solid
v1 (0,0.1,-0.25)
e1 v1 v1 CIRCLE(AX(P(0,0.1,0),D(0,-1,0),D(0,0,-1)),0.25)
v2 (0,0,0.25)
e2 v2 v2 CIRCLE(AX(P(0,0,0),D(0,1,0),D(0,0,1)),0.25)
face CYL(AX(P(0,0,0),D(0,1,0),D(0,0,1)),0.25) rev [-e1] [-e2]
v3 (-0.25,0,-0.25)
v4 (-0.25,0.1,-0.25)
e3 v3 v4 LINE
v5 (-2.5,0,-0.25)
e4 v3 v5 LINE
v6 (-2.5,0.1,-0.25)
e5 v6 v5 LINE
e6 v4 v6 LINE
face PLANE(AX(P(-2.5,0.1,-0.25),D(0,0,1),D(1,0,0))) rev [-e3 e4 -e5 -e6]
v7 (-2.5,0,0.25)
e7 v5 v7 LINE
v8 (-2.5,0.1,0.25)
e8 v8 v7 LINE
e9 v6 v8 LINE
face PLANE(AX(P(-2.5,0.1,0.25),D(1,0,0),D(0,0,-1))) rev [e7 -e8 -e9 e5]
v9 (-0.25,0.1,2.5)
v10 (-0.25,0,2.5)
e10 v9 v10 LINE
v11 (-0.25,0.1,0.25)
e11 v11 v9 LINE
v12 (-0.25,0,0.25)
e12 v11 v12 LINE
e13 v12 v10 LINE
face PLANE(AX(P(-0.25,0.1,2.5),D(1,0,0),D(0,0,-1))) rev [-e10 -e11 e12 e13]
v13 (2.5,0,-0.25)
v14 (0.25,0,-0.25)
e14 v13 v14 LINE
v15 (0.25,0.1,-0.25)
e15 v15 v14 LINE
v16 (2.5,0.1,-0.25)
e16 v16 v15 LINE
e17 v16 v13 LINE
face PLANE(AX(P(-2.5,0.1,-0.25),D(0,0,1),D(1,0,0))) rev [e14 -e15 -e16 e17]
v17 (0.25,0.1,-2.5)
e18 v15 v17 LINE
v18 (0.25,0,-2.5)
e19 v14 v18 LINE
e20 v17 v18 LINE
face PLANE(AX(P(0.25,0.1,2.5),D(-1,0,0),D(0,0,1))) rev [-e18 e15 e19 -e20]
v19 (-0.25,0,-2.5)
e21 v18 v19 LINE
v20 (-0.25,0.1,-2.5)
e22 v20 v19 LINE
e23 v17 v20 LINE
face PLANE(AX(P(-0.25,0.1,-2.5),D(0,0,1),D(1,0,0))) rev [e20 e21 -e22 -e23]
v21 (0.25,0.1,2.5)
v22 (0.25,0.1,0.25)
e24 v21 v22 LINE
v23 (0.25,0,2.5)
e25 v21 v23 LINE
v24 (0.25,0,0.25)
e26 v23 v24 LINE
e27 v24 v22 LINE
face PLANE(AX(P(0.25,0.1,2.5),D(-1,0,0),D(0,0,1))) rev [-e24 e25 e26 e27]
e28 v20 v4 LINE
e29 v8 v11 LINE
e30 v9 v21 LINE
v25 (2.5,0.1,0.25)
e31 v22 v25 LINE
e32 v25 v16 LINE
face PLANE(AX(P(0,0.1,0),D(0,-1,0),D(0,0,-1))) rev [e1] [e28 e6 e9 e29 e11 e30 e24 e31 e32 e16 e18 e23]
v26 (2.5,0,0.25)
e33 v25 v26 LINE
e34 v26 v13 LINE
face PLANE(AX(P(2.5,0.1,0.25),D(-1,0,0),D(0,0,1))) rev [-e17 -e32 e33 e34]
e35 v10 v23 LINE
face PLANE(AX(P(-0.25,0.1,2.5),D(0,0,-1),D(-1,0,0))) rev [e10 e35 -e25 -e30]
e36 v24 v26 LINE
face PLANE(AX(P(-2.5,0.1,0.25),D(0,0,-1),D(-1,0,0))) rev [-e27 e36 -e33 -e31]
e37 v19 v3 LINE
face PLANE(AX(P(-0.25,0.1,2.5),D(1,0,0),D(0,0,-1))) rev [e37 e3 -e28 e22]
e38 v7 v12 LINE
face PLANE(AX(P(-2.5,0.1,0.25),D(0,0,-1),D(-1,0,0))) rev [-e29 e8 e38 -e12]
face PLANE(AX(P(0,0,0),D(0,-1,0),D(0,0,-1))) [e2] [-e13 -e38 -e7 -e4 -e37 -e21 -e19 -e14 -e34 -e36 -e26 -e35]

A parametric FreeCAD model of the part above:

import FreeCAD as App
import Part
import Sketcher

V = App.Vector
Q = App.Units.Quantity


def add_polygon(sketch, points):
    """Adds a closed chain of lines whose ends are joined by coincident constraints."""
    first, n = sketch.GeometryCount, len(points)
    for a, b in zip(points, points[1:] + points[:1]):
        sketch.addGeometry(Part.LineSegment(App.Vector(*a, 0), App.Vector(*b, 0)), False)
    for i in range(n):
        sketch.addConstraint(Sketcher.Constraint("Coincident", first + i, 2, first + (i + 1) % n, 1))

doc = App.newDocument("Part")
params = doc.addObject("Spreadsheet::Sheet", "Params")
for row, (alias, value) in enumerate([
    ("sketch1_width", "5 mm"),
    ("sketch1_height", "0.5 mm"),
    ("pad1_length", "0.1 mm"),
    ("sketch2_height", "5 mm"),
    ("sketch2_width", "0.5 mm"),
    ("pad2_length", "0.1 mm"),
    ("sketch3_diameter", "0.5 mm"),
], start=1):
    params.set(f"A{row}", alias)
    params.set(f"B{row}", "=" + value)
    params.setAlias(f"B{row}", alias)

body = doc.addObject("PartDesign::Body", "Body")

# Sketch on XZ plane
sketch1 = body.newObject("Sketcher::SketchObject", "Sketch")
sketch1.AttachmentSupport = (doc.getObject("XZ_Plane"), [""])
sketch1.MapMode = "FlatFace"
add_polygon(sketch1, [(-2.5, -0.2), (-2.5, 0.2), (2.5, 0.2), (2.5, -0.2)])  # lines 0-3
sketch1.addConstraint([
    Sketcher.Constraint("Vertical", 0),
    Sketcher.Constraint("Horizontal", 1),
    Sketcher.Constraint("Vertical", 2),
    Sketcher.Constraint("Horizontal", 3),
    Sketcher.Constraint("Symmetric", 0, 2, 2, 2, -1, 1),
    Sketcher.Constraint("DistanceX", 1, 1, 1, 2, Q("5 mm")),
    Sketcher.Constraint("DistanceY", 0, 1, 0, 2, Q("0.5 mm")),
])
sketch1.setExpression("Constraints[9]", "Params.sketch1_width")
sketch1.setExpression("Constraints[10]", "Params.sketch1_height")
pad1 = body.newObject("PartDesign::Pad", "Pad")
pad1.Profile = sketch1
pad1.setExpression("Length", "Params.pad1_length")
pad1.Reversed = True

# Sketch on XZ plane
sketch2 = body.newObject("Sketcher::SketchObject", "Sketch001")
sketch2.AttachmentSupport = (doc.getObject("XZ_Plane"), [""])
sketch2.MapMode = "FlatFace"
add_polygon(sketch2, [(-0.2, -2.5), (-0.2, 2.5), (0.2, 2.5), (0.2, -2.5)])  # lines 0-3
sketch2.addConstraint([
    Sketcher.Constraint("Vertical", 0),
    Sketcher.Constraint("Horizontal", 1),
    Sketcher.Constraint("Vertical", 2),
    Sketcher.Constraint("Horizontal", 3),
    Sketcher.Constraint("Symmetric", 0, 2, 2, 2, -1, 1),
    Sketcher.Constraint("DistanceY", 0, 1, 0, 2, Q("5 mm")),
    Sketcher.Constraint("DistanceX", 1, 1, 1, 2, Q("0.5 mm")),
])
sketch2.setExpression("Constraints[9]", "Params.sketch2_height")
sketch2.setExpression("Constraints[10]", "Params.sketch2_width")
pad2 = body.newObject("PartDesign::Pad", "Pad001")
pad2.Profile = sketch2
pad2.setExpression("Length", "Params.pad2_length")
pad2.Reversed = True

# Sketch on XZ plane
sketch3 = body.newObject("Sketcher::SketchObject", "Sketch002")
sketch3.AttachmentSupport = (doc.getObject("XZ_Plane"), [""])
sketch3.MapMode = "FlatFace"
sketch3.AttachmentOffset = App.Placement(V(0, 0, -0.1), App.Rotation())
sketch3.addGeometry(Part.Circle(V(0, 0, 0), V(0, 0, 1), 0.25), False)
sketch3.addConstraint([
    Sketcher.Constraint("Coincident", 0, 3, -1, 1),
    Sketcher.Constraint("Diameter", 0, Q("0.5 mm")),
])
sketch3.setExpression("Constraints[1]", "Params.sketch3_diameter")
pocket1 = body.newObject("PartDesign::Pocket", "Pocket")
pocket1.Profile = sketch3
pocket1.Type = "ThroughAll"
pocket1.Midplane = True

doc.recompute()
